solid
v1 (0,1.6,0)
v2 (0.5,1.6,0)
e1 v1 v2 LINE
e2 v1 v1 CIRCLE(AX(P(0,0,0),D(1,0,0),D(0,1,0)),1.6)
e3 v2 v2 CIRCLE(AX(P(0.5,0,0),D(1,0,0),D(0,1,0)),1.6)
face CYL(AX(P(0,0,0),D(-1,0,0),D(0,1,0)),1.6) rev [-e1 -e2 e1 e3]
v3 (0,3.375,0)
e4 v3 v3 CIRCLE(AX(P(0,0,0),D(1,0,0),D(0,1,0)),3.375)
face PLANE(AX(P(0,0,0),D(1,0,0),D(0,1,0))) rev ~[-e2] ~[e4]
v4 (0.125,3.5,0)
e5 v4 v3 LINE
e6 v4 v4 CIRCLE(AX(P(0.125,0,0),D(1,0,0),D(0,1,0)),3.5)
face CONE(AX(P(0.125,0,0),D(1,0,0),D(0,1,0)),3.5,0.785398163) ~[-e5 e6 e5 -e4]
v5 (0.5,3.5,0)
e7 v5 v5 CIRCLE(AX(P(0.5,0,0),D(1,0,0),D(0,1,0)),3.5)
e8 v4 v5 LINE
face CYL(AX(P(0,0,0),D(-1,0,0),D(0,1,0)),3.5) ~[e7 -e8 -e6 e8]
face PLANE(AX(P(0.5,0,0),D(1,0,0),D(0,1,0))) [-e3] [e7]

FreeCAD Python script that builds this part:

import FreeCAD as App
import Part
import Sketcher
Q = App.Units.Quantity


def edges_at(feature, points):
    """Names of the edges that pass closest to the given points."""
    edges = feature.Shape.Edges
    near = lambda p: min(range(len(edges)), key=lambda i: edges[i].distToShape(Part.Vertex(*p))[0])
    return sorted({f"Edge{near(p) + 1}" for p in points})

doc = App.newDocument("Part")
body = doc.addObject("PartDesign::Body", "Body")

# Sketch on YZ plane
sketch1 = body.newObject("Sketcher::SketchObject", "Sketch")
sketch1.AttachmentSupport = (doc.getObject("YZ_Plane"), [""])
sketch1.MapMode = "FlatFace"
sketch1.addGeometry([
    Part.Circle(App.Vector(0, 0, 0), App.Vector(0, 0, 1), 3.5),
    Part.Circle(App.Vector(0, 0, 0), App.Vector(0, 0, 1), 1.6),
], False)
sketch1.addConstraint([
    Sketcher.Constraint("Coincident", 0, 3, -1, 1),
    Sketcher.Constraint("Coincident", 1, 3, -1, 1),
    Sketcher.Constraint("Diameter", 0, Q("7 mm")),
    Sketcher.Constraint("Diameter", 1, Q("3.2 mm")),
])
pad1 = body.newObject("PartDesign::Pad", "Pad")
pad1.Profile = sketch1
pad1.Length = 0.5
doc.recompute()

chamfer = body.newObject("PartDesign::Chamfer", "Chamfer")
chamfer.Base = (pad1, edges_at(pad1, [(0, -3.5, 0)]))
chamfer.Size = 0.125

doc.recompute()
